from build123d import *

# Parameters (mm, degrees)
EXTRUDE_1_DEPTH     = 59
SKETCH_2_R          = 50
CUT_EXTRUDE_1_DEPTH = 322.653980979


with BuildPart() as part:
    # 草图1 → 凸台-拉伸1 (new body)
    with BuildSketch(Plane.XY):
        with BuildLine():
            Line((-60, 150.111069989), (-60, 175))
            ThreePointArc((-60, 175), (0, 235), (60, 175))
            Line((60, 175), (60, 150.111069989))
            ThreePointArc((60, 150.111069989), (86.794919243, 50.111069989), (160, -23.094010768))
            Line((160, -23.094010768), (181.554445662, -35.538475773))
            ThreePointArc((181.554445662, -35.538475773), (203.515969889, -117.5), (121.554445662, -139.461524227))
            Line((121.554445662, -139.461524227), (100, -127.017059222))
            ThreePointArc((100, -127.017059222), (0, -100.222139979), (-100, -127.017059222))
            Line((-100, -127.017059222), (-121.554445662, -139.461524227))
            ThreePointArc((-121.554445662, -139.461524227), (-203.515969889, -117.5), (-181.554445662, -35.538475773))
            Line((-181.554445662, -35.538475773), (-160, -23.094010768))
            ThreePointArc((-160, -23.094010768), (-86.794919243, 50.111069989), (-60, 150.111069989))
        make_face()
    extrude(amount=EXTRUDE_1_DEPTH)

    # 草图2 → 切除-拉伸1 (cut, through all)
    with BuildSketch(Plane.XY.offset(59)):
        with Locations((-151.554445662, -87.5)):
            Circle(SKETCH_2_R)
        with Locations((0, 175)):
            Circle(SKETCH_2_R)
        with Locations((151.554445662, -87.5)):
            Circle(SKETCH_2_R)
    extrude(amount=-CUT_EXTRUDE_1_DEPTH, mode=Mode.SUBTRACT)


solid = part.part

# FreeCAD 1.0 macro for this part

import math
import FreeCAD as App
import Part
import Sketcher
from FreeCAD import Vector
Q = App.Units.Quantity

doc = App.newDocument("Part")
body = doc.addObject("PartDesign::Body", "Body")

sketch1 = body.newObject("Sketcher::SketchObject", "Sketch")
sketch1.AttachmentSupport = (doc.getObject("XY_Plane"), [""])
sketch1.MapMode = "FlatFace"
sketch1.addGeometry([
    Part.LineSegment(Vector(-60, 175, 0), Vector(-60, 150.11107, 0)),
    Part.ArcOfCircle(Part.Circle(Vector(-260, 150.11107, 0), Vector(0, 0, 1), 200), math.radians(-60), math.radians(0)),
    Part.LineSegment(Vector(-160, -23.094011, 0), Vector(-181.554446, -35.538476, 0)),
    Part.ArcOfCircle(Part.Circle(Vector(-151.554446, -87.5, 0), Vector(0, 0, 1), 60), math.radians(120), math.radians(300)),
    Part.LineSegment(Vector(-121.554446, -139.461524, 0), Vector(-100, -127.017059, 0)),
    Part.ArcOfCircle(Part.Circle(Vector(0, -300.22214, 0), Vector(0, 0, 1), 200), math.radians(60), math.radians(120)),
    Part.LineSegment(Vector(100, -127.017059, 0), Vector(121.554446, -139.461524, 0)),
    Part.ArcOfCircle(Part.Circle(Vector(151.554446, -87.5, 0), Vector(0, 0, 1), 60), math.radians(-120), math.radians(60)),
    Part.LineSegment(Vector(181.554446, -35.538476, 0), Vector(160, -23.094011, 0)),
    Part.ArcOfCircle(Part.Circle(Vector(260, 150.11107, 0), Vector(0, 0, 1), 200), math.radians(180), math.radians(240)),
    Part.LineSegment(Vector(60, 150.11107, 0), Vector(60, 175, 0)),
    Part.ArcOfCircle(Part.Circle(Vector(0, 175, 0), Vector(0, 0, 1), 60), math.radians(0), math.radians(180)),
], False)
sketch1.addConstraint([
    Sketcher.Constraint("Tangent", 0, 2, 1, 2),
    Sketcher.Constraint("Tangent", 1, 1, 2, 1),
    Sketcher.Constraint("Tangent", 2, 2, 3, 1),
    Sketcher.Constraint("Tangent", 3, 2, 4, 1),
    Sketcher.Constraint("Tangent", 4, 2, 5, 2),
    Sketcher.Constraint("Tangent", 5, 1, 6, 1),
    Sketcher.Constraint("Tangent", 6, 2, 7, 1),
    Sketcher.Constraint("Tangent", 7, 2, 8, 1),
    Sketcher.Constraint("Tangent", 8, 2, 9, 2),
    Sketcher.Constraint("Tangent", 9, 1, 10, 1),
    Sketcher.Constraint("Tangent", 10, 2, 11, 1),
    Sketcher.Constraint("Tangent", 11, 2, 0, 1),
    Sketcher.Constraint("Vertical", 0),
    Sketcher.Constraint("Vertical", 10),
    Sketcher.Constraint("Equal", 1, 5),
    Sketcher.Constraint("Equal", 3, 7),
    Sketcher.Constraint("Equal", 5, 9),
    Sketcher.Constraint("Equal", 7, 11),
    Sketcher.Constraint("Symmetric", 3, 3, 7, 3, -2),
    Sketcher.Constraint("Symmetric", 1, 3, 9, 3, -2),
    Sketcher.Constraint("PointOnObject", 5, 3, -2),
    Sketcher.Constraint("Parallel", 2, 4),
    Sketcher.Constraint("Equal", 2, 4),
    Sketcher.Constraint("Radius", 1, Q("200 mm")),
    Sketcher.Constraint("Radius", 3, Q("60 mm")),
    Sketcher.Constraint("DistanceY", -1, 1, 11, 3, Q("175 mm")),
    Sketcher.Constraint("DistanceY", 3, 3, -1, 1, Q("87.5 mm")),
    Sketcher.Constraint("DistanceY", 0, 2, 0, 1, Q("24.88893 mm")),
])
pad1 = body.newObject("PartDesign::Pad", "Pad")
pad1.Profile = sketch1
pad1.Length = 59

sketch2 = body.newObject("Sketcher::SketchObject", "Sketch001")
sketch2.AttachmentSupport = (doc.getObject("XY_Plane"), [""])
sketch2.MapMode = "FlatFace"
sketch2.AttachmentOffset = App.Placement(Vector(0, 0, 59), App.Rotation())
sketch2.addGeometry([
    Part.Circle(Vector(-151.554446, -87.5, 0), Vector(0, 0, 1), 50),
    Part.Circle(Vector(0, 175, 0), Vector(0, 0, 1), 50),
    Part.Circle(Vector(151.554446, -87.5, 0), Vector(0, 0, 1), 50),
], False)
sketch2.addConstraint([
    Sketcher.Constraint("Equal", 0, 1),
    Sketcher.Constraint("Equal", 1, 2),
    Sketcher.Constraint("Symmetric", 0, 3, 2, 3, -2),
    Sketcher.Constraint("PointOnObject", 1, 3, -2),
    Sketcher.Constraint("Diameter", 0, Q("100 mm")),
    Sketcher.Constraint("DistanceY", -1, 1, 1, 3, Q("175 mm")),
    Sketcher.Constraint("DistanceY", 0, 3, -1, 1, Q("87.5 mm")),
    Sketcher.Constraint("DistanceX", 0, 3, 2, 3, Q("303.108891 mm")),
])
pocket1 = body.newObject("PartDesign::Pocket", "Pocket")
pocket1.Profile = sketch2
pocket1.Type = "ThroughAll"

doc.recompute()
